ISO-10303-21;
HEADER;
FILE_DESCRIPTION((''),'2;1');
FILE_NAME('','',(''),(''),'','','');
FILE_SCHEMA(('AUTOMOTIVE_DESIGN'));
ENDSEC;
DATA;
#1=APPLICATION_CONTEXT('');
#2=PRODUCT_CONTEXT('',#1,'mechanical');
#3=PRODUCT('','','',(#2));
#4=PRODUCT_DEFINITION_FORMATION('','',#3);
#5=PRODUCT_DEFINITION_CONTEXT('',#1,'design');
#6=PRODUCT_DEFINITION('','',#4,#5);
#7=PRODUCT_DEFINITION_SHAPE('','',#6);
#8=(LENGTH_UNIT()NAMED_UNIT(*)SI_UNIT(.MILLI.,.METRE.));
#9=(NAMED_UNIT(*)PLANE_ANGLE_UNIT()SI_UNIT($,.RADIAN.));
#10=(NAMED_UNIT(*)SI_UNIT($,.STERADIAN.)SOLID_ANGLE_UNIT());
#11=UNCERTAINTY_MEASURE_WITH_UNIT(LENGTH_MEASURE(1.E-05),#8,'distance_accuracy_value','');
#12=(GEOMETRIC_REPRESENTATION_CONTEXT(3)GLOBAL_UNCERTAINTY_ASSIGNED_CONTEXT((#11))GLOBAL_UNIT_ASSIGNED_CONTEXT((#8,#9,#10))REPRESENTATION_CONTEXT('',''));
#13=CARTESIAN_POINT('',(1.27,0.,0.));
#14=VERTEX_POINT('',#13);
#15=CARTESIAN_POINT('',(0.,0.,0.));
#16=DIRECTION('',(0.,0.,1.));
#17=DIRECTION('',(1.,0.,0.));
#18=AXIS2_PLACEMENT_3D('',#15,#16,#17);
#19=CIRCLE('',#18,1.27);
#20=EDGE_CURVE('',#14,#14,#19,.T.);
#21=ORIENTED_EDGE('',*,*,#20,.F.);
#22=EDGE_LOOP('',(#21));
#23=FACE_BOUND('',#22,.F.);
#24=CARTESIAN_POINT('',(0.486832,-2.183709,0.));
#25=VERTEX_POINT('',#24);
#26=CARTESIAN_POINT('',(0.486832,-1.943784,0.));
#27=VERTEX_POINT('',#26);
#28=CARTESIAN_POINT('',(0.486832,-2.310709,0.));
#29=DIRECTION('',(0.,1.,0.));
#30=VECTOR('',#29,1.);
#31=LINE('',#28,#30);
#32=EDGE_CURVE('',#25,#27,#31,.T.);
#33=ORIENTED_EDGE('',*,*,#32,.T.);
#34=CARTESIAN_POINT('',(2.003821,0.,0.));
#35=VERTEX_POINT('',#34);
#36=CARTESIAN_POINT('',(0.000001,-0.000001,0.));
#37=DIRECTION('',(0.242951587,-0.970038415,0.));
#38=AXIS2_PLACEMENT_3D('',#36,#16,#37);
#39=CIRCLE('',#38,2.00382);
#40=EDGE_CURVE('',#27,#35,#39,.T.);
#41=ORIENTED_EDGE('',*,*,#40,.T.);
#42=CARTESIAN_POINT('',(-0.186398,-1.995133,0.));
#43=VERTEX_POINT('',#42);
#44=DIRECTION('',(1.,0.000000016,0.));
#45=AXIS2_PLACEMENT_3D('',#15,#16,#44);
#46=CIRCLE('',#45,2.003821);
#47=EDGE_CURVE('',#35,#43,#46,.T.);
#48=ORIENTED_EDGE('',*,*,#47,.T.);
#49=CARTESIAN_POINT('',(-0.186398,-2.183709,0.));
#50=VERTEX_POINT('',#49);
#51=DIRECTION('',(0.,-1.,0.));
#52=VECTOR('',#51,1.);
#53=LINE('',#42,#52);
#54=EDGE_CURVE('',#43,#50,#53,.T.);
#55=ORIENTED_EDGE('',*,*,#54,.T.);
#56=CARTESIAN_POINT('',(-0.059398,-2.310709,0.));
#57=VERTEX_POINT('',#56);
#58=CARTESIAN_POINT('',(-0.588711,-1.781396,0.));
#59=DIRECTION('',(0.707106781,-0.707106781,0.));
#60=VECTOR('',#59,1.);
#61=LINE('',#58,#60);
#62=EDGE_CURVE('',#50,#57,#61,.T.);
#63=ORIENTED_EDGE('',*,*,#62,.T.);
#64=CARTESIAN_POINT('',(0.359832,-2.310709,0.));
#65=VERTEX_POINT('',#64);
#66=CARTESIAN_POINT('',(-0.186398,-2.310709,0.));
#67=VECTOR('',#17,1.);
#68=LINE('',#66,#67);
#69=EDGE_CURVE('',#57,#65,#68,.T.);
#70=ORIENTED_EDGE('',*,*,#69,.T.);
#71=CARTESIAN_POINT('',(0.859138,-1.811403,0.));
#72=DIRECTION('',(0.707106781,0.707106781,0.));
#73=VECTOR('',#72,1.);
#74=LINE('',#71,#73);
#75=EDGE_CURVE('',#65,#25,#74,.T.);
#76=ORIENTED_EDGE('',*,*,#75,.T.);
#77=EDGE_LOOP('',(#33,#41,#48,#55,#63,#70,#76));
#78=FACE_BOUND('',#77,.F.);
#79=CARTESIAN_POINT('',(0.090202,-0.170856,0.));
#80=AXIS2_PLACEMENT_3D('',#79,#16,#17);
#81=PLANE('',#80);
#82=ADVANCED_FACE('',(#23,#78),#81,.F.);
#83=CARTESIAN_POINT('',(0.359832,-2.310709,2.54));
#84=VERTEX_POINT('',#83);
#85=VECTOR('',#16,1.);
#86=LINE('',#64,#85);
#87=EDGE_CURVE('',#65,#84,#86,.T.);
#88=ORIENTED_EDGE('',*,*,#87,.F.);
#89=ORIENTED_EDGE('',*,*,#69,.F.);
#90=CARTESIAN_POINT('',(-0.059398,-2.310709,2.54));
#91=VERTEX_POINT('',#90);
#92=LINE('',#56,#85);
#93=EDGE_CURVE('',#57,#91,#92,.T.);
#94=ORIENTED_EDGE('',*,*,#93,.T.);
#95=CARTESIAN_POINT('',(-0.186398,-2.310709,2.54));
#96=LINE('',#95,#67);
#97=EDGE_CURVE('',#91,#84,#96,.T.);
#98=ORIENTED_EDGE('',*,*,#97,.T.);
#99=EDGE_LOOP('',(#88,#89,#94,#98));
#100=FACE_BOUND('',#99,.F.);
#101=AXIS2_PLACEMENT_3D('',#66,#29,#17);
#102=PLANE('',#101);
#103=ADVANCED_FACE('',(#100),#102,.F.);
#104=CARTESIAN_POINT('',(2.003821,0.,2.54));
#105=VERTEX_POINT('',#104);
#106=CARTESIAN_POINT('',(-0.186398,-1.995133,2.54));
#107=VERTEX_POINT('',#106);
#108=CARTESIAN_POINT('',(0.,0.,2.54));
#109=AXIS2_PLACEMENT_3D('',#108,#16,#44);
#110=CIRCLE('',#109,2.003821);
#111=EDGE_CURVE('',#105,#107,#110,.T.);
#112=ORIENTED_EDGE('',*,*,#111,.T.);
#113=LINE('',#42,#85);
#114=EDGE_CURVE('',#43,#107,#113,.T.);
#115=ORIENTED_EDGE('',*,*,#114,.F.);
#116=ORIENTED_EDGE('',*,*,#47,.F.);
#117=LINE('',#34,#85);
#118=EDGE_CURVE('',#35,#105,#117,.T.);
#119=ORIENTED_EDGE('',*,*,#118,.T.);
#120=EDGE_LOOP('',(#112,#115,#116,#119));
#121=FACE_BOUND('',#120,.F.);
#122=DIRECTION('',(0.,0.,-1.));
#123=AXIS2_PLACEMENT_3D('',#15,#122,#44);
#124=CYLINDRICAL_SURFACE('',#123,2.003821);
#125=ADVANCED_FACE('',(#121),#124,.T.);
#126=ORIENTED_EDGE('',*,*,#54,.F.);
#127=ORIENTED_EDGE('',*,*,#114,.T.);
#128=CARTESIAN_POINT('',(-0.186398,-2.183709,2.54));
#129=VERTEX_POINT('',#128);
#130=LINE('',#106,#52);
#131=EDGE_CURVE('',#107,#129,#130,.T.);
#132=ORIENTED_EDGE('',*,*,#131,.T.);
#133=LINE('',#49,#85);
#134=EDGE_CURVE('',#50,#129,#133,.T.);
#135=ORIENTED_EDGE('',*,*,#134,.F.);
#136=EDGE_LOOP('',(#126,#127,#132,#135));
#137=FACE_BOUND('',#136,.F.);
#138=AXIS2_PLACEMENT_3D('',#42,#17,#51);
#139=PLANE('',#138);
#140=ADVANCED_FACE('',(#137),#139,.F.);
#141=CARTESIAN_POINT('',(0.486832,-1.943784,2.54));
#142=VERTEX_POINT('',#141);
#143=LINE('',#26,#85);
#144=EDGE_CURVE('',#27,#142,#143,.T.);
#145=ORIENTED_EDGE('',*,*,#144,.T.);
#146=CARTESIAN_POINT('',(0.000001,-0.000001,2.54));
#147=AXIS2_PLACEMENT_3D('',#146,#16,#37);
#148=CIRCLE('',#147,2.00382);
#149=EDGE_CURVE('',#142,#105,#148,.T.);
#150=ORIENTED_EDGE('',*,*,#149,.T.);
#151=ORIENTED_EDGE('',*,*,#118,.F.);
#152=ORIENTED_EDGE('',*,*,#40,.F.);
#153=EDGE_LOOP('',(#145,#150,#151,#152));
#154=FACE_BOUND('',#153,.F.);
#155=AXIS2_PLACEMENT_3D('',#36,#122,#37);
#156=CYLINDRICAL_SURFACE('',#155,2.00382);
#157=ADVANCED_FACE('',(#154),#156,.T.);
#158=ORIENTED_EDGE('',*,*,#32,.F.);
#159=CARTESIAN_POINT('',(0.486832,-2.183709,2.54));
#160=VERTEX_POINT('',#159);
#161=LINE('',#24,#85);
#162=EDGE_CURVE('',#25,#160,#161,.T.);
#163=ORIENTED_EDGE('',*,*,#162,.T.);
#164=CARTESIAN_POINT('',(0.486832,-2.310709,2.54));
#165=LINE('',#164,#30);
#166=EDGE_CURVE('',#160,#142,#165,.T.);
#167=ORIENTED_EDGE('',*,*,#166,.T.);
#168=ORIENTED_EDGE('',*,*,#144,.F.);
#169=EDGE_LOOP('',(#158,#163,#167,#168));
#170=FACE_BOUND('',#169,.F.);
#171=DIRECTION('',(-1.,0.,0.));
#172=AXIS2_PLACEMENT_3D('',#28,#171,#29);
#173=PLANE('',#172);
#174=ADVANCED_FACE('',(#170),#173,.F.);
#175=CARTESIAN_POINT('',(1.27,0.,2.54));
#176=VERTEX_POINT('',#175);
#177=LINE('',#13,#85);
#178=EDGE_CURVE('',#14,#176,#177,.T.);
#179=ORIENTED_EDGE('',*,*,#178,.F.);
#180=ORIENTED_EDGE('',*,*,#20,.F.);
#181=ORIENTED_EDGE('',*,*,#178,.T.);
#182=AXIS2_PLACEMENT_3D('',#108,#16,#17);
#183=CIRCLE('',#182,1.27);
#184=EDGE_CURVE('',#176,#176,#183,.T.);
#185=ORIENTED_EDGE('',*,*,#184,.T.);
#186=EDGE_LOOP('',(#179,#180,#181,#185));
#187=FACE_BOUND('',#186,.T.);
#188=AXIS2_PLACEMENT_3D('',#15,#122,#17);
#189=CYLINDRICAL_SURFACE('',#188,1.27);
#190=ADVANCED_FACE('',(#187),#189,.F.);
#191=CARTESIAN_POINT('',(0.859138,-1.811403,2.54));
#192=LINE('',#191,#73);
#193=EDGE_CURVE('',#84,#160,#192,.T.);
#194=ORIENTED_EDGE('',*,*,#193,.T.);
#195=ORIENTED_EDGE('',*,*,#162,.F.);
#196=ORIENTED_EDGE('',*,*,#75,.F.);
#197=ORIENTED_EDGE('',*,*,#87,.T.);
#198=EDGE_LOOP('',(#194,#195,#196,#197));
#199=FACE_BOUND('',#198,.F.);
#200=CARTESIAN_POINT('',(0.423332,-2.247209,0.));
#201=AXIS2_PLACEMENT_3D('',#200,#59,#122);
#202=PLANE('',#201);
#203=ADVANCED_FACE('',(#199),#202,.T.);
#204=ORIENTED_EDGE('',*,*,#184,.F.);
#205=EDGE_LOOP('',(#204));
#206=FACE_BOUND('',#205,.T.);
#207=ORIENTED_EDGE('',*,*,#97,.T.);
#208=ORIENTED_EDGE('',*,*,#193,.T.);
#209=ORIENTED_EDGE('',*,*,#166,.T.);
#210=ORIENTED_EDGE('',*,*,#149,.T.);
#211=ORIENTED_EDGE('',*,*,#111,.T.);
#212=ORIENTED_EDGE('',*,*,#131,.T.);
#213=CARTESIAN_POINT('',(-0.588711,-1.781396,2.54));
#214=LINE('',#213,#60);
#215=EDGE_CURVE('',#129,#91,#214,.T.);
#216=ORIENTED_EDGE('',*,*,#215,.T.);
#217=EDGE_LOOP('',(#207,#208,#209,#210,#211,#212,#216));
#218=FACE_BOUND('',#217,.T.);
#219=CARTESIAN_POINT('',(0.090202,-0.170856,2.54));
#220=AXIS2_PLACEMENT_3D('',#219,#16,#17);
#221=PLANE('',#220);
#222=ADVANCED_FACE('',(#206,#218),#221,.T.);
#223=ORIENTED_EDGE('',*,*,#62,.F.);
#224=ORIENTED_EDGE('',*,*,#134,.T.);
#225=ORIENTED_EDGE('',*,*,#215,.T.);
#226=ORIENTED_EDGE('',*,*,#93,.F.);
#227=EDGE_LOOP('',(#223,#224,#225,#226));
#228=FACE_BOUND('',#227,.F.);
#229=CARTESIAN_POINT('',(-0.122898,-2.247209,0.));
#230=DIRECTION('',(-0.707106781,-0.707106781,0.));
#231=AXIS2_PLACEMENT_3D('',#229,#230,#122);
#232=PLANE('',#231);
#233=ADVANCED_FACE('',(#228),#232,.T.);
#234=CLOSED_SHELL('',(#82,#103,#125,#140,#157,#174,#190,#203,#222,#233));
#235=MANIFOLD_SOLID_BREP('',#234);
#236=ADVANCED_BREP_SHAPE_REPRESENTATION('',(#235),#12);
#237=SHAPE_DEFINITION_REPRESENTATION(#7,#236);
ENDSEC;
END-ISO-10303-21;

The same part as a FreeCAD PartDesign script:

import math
import FreeCAD as App
import Part
import Sketcher
from FreeCAD import Vector
Q = App.Units.Quantity


def edges_at(feature, points):
    """Names of the edges that pass closest to the given points."""
    edges = feature.Shape.Edges
    near = lambda p: min(range(len(edges)), key=lambda i: edges[i].distToShape(Part.Vertex(*p))[0])
    return sorted({f"Edge{near(p) + 1}" for p in points})

doc = App.newDocument("Part")
params = doc.addObject("Spreadsheet::Sheet", "Params")
for row, (alias, value) in enumerate([
    ("sketch1_diameter", "0.1 in"),
    ("pad1_length", "0.1 in"),
    ("chamfer_size", "0.005 in"),
], start=1):
    params.set(f"A{row}", alias)
    params.set(f"B{row}", "=" + value)
    params.setAlias(f"B{row}", alias)

body = doc.addObject("PartDesign::Body", "Body")

# Sketch on XY plane
sketch1 = body.newObject("Sketcher::SketchObject", "Sketch")
sketch1.AttachmentSupport = (doc.getObject("XY_Plane"), [""])
sketch1.MapMode = "FlatFace"
sketch1.addGeometry([
    Part.ArcOfCircle(Part.Circle(Vector(0, 0, 0), Vector(0, 0, 1), 2), math.radians(-76), math.radians(0)),  # 0
    Part.ArcOfCircle(Part.Circle(Vector(0, 0, 0), Vector(0, 0, 1), 2), math.radians(0), math.radians(265)),  # 1
    Part.LineSegment(Vector(-0.19, -2, 0), Vector(-0.19, -2.31, 0)),  # 2
    Part.LineSegment(Vector(-0.19, -2.31, 0), Vector(0.49, -2.31, 0)),  # 3
    Part.LineSegment(Vector(0.49, -2.31, 0), Vector(0.49, -1.94, 0)),  # 4
    Part.Circle(Vector(0, 0, 0), Vector(0, 0, 1), 1.27),  # 5
], False)
sketch1.addConstraint([
    Sketcher.Constraint("Tangent", 0, 2, 1, 1),
    Sketcher.Constraint("Coincident", 1, 2, 2, 1),
    Sketcher.Constraint("Coincident", 2, 2, 3, 1),
    Sketcher.Constraint("Coincident", 3, 2, 4, 1),
    Sketcher.Constraint("Coincident", 4, 2, 0, 1),
    Sketcher.Constraint("Vertical", 2),
    Sketcher.Constraint("Horizontal", 3),
    Sketcher.Constraint("Vertical", 4),
    Sketcher.Constraint("Coincident", 0, 3, -1, 1),
    Sketcher.Constraint("Coincident", 5, 3, -1, 1),
    Sketcher.Constraint("Equal", 0, 1),
    Sketcher.Constraint("PointOnObject", 0, 2, -1),
    Sketcher.Constraint("Diameter", 5, Q("0.1 in")),
    Sketcher.Constraint("Radius", 0, Q("2.00382 mm")),
    Sketcher.Constraint("DistanceX", 3, 1, 3, 2, Q("0.67323 mm")),
    Sketcher.Constraint("DistanceX", 1, 2, 0, 3, Q("0.186399 mm")),
    Sketcher.Constraint("DistanceY", 2, 2, 2, 1, Q("0.315576 mm")),
])
sketch1.setExpression("Constraints[12]", "Params.sketch1_diameter")
pad1 = body.newObject("PartDesign::Pad", "Pad")
pad1.Profile = sketch1
pad1.setExpression("Length", "Params.pad1_length")
doc.recompute()

chamfer = body.newObject("PartDesign::Chamfer", "Chamfer")
chamfer.Base = (pad1, edges_at(pad1, [(-0.186, -2.311, 1.27), (0.487, -2.311, 1.27)]))
chamfer.setExpression("Size", "Params.chamfer_size")

doc.recompute()
